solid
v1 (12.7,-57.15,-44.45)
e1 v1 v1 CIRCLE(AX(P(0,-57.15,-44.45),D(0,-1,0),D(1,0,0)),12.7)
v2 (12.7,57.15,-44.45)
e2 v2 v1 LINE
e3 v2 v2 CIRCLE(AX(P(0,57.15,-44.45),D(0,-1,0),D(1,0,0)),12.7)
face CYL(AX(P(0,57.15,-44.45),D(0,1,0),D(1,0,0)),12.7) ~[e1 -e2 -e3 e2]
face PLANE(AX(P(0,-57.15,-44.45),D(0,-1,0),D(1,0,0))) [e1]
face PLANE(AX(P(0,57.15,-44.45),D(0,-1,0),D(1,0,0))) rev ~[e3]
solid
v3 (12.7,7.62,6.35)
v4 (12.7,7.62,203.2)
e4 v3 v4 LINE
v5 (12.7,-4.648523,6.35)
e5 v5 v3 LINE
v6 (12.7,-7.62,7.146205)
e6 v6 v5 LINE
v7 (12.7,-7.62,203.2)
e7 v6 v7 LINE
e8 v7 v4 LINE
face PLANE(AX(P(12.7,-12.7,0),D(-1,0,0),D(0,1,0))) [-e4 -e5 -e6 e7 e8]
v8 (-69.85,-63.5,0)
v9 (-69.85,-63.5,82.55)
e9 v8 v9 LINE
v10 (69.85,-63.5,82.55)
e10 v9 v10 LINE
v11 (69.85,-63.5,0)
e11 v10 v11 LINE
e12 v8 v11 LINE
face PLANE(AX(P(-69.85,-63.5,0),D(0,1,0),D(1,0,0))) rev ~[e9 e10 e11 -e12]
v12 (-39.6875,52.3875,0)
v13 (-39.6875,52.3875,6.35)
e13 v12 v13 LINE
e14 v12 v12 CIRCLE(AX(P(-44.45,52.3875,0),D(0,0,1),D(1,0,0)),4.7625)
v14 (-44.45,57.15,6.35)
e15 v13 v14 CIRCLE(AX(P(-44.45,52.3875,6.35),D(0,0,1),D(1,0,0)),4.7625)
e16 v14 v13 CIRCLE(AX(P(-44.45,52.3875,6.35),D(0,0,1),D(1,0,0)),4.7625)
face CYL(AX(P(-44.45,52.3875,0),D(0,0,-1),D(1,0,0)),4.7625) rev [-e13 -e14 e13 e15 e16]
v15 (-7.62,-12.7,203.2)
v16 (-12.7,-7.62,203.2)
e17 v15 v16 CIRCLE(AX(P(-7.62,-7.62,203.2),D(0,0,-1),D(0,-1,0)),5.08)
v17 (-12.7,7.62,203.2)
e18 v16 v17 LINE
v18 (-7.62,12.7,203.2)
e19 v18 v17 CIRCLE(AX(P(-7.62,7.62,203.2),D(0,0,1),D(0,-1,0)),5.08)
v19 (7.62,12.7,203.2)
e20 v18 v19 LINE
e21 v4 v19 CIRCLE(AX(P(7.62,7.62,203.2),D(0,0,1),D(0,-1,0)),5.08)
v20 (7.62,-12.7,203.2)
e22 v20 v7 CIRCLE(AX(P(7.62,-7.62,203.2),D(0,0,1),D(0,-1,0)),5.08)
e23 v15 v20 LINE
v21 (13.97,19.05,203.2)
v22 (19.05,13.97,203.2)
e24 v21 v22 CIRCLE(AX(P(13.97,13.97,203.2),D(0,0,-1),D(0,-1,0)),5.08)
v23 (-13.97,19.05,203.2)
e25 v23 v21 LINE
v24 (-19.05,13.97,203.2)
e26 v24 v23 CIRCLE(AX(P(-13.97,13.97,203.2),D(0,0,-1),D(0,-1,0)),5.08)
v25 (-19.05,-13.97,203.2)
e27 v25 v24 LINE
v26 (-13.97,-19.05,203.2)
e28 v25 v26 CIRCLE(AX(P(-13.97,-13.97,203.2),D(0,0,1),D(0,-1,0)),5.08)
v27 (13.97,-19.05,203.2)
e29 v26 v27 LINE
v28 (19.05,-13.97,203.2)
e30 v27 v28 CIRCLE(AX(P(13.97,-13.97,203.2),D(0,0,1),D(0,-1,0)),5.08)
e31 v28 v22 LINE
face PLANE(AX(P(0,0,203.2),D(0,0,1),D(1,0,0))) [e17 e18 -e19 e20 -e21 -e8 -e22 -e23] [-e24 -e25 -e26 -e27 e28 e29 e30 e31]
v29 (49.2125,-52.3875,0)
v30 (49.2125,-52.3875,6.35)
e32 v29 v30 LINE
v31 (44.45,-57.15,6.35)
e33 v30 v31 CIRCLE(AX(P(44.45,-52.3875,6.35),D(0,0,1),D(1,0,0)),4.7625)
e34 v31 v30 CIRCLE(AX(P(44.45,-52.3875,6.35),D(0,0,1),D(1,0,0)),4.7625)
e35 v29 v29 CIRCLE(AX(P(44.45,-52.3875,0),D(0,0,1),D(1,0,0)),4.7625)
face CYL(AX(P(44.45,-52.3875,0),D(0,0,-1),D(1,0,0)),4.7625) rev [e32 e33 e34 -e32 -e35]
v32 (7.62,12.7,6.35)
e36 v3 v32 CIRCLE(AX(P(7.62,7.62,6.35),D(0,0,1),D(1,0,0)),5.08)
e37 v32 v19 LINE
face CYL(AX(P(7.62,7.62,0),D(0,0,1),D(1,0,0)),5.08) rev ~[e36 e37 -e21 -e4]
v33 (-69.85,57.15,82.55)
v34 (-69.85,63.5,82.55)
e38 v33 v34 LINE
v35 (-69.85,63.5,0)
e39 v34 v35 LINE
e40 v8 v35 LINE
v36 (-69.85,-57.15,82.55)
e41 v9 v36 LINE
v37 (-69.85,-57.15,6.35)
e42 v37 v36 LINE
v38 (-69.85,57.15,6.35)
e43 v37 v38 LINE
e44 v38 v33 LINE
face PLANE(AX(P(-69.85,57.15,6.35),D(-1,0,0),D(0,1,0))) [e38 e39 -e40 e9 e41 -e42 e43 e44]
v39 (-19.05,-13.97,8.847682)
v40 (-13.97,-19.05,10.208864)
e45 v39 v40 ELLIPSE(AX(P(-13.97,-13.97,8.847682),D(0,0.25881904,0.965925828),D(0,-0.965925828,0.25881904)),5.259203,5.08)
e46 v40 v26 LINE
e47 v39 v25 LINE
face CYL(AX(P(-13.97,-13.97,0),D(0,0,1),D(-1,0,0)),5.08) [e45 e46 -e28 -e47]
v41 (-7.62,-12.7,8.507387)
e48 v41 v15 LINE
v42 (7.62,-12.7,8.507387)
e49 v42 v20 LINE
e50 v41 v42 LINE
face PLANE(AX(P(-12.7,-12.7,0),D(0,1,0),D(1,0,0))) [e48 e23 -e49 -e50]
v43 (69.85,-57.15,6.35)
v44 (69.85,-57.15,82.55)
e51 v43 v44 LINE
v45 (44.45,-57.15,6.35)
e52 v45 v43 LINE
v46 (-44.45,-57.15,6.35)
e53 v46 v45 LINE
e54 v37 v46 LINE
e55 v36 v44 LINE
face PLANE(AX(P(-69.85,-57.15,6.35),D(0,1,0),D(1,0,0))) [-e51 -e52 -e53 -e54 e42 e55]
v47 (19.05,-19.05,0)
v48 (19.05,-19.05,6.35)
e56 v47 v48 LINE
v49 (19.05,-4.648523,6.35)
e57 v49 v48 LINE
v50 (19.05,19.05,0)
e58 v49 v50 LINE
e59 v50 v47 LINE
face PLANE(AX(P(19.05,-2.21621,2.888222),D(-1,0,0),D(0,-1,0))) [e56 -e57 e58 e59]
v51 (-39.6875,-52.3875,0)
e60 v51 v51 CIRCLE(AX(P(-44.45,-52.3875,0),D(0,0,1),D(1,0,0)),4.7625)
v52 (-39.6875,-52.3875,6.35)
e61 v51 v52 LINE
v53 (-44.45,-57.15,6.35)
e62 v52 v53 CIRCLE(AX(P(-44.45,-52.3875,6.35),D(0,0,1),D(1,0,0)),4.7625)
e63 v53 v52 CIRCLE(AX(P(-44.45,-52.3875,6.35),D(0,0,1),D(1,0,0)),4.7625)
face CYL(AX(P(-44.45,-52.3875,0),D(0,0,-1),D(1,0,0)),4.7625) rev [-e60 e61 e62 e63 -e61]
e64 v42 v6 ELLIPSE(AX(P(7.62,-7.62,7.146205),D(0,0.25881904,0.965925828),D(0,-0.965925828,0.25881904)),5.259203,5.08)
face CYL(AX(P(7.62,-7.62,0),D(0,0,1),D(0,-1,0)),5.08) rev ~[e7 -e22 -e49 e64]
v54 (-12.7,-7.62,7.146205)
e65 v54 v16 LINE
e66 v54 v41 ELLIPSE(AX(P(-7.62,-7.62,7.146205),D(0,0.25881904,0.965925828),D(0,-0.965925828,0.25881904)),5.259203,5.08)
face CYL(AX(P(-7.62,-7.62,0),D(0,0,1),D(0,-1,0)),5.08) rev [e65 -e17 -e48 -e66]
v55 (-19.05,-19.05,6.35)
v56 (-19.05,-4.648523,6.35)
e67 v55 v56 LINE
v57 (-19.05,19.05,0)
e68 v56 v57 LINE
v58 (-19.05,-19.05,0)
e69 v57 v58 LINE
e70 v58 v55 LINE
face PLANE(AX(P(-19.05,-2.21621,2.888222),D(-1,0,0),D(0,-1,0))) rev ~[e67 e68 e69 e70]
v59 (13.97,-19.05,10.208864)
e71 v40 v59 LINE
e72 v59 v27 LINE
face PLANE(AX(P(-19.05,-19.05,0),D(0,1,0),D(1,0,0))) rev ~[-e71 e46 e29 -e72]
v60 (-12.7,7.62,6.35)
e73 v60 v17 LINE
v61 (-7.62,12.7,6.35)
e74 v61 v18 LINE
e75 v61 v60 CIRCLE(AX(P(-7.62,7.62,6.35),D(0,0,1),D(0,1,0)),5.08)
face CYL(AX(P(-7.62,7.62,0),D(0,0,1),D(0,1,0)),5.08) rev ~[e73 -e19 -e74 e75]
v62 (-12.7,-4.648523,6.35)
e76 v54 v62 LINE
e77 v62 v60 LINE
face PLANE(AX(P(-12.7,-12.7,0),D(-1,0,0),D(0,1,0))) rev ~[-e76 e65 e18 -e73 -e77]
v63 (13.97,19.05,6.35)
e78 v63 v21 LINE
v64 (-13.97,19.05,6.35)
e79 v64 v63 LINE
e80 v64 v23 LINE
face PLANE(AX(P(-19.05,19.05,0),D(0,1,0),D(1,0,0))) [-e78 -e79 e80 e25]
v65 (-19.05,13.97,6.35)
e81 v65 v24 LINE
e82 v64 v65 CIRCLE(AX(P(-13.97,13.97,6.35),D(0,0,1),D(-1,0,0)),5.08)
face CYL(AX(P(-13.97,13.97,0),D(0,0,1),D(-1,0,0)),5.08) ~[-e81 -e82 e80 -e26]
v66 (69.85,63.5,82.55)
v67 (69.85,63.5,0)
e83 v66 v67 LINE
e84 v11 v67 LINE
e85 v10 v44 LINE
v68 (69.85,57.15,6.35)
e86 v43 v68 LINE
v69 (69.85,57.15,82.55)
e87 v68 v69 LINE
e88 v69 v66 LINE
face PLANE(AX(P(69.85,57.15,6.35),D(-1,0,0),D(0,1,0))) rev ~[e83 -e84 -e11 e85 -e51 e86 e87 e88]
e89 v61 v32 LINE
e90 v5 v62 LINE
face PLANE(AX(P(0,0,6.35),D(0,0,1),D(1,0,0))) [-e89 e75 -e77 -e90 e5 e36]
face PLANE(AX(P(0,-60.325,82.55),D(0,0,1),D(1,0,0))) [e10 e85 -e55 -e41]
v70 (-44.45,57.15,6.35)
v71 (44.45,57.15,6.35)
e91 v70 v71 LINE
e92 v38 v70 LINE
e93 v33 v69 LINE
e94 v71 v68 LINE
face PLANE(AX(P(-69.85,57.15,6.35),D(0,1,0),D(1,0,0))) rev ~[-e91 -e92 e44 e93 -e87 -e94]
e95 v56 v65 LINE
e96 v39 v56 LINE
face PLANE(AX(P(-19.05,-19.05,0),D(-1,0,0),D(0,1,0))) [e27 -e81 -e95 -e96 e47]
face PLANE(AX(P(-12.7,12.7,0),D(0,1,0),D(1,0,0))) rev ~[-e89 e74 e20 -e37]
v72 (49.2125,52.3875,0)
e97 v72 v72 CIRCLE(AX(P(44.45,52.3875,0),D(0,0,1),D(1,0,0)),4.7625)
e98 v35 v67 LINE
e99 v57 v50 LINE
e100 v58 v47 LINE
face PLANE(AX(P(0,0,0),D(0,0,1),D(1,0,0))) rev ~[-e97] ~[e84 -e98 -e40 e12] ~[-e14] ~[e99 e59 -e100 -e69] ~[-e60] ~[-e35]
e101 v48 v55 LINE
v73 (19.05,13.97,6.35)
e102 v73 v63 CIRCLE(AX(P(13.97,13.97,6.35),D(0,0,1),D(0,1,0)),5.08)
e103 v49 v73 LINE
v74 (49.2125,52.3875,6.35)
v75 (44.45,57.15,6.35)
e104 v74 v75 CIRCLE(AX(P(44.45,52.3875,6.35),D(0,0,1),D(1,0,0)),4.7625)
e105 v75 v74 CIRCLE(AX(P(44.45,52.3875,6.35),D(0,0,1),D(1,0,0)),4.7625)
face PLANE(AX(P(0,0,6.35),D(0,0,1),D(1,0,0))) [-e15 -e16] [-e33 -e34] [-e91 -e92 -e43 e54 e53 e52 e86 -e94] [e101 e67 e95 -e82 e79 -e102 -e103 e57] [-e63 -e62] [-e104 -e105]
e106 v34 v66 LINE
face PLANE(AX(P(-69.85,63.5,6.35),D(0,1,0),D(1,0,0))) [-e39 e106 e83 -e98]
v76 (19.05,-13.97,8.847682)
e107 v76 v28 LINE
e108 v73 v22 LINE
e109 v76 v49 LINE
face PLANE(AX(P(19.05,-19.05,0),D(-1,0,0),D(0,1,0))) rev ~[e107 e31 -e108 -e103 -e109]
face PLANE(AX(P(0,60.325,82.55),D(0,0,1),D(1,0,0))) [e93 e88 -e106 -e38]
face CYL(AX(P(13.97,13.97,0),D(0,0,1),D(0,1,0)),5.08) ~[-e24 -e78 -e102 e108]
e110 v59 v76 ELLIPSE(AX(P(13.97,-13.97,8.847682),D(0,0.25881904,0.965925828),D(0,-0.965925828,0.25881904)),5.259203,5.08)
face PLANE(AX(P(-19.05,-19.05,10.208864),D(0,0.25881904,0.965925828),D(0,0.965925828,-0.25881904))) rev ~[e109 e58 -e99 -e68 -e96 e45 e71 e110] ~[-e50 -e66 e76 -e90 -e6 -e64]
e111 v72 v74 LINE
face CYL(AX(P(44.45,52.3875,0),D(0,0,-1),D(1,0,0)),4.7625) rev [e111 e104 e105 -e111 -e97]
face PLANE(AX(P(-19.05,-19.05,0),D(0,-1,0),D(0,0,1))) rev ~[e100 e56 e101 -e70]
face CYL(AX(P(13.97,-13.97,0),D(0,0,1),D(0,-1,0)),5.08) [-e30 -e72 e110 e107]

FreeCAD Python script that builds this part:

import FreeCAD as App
import Part
import Sketcher

V = App.Vector
Q = App.Units.Quantity


def edges_at(feature, points):
    """Names of the edges that pass closest to the given points."""
    edges = feature.Shape.Edges
    near = lambda p: min(range(len(edges)), key=lambda i: edges[i].distToShape(Part.Vertex(*p))[0])
    return sorted({f"Edge{near(p) + 1}" for p in points})


def add_polygon(sketch, points):
    """Adds a closed chain of lines whose ends are joined by coincident constraints."""
    first, n = sketch.GeometryCount, len(points)
    for a, b in zip(points, points[1:] + points[:1]):
        sketch.addGeometry(Part.LineSegment(App.Vector(*a, 0), App.Vector(*b, 0)), False)
    for i in range(n):
        sketch.addConstraint(Sketcher.Constraint("Coincident", first + i, 2, first + (i + 1) % n, 1))

doc = App.newDocument("Part")
body = doc.addObject("PartDesign::Body", "Body")

sketch1 = doc.addObject("Sketcher::SketchObject", "Sketch")
body.addObject(sketch1)
sketch1.AttachmentSupport = (doc.XY_Plane, [""])
sketch1.MapMode = "FlatFace"
add_polygon(sketch1, [(-19, 19), (-19, -19), (19, -19), (19, 19)])
add_polygon(sketch1, [(13, -13), (-13, -13), (-13, 13), (13, 13)])
sketch1.addConstraint([
    Sketcher.Constraint("Vertical", 0),
    Sketcher.Constraint("Horizontal", 1),
    Sketcher.Constraint("Vertical", 2),
    Sketcher.Constraint("Horizontal", 3),
    Sketcher.Constraint("Horizontal", 4),
    Sketcher.Constraint("Vertical", 5),
    Sketcher.Constraint("Horizontal", 6),
    Sketcher.Constraint("Vertical", 7),
    Sketcher.Constraint("Symmetric", 0, 2, 2, 2, -1, 1),
    Sketcher.Constraint("Symmetric", 4, 2, 6, 2, -1, 1),
    Sketcher.Constraint("Equal", 3, 0),
    Sketcher.Constraint("Equal", 6, 5),
    Sketcher.Constraint("DistanceX", 4, 2, 4, 1, Q("1 in")),
    Sketcher.Constraint("DistanceX", 1, 1, 1, 2, Q("1.5 in")),
])
pad1 = doc.addObject("PartDesign::Pad", "Pad")
body.addObject(pad1)
pad1.Profile = sketch1
pad1.Length = Q("8 in")
doc.recompute()

fillet = doc.addObject("PartDesign::Fillet", "Fillet")
body.addObject(fillet)
fillet.Base = (pad1, edges_at(pad1, [
    (-19.05, 19.05, 101.6),
    (-19.05, -19.05, 101.6),
    (19.05, -19.05, 101.6),
    (19.05, 19.05, 101.6),
    (-12.7, 12.7, 101.6),
    (12.7, 12.7, 101.6),
    (12.7, -12.7, 101.6),
    (-12.7, -12.7, 101.6),
]))
fillet.Radius = Q("0.2 in")

sketch2 = doc.addObject("Sketcher::SketchObject", "Sketch001")
body.addObject(sketch2)
sketch2.AttachmentSupport = (doc.XY_Plane, [""])
sketch2.MapMode = "FlatFace"
add_polygon(sketch2, [(-69.8, 63.5), (-69.8, -63.5), (69.8, -63.5), (69.8, 63.5)])
sketch2.addGeometry(Part.Circle(V(-44.5, -52.4, 0), V(0, 0, 1), 4.8), False)
sketch2.addGeometry(Part.Circle(V(44.5, -52.4, 0), V(0, 0, 1), 4.8), False)
sketch2.addGeometry(Part.Circle(V(-44.5, 52.4, 0), V(0, 0, 1), 4.8), False)
sketch2.addGeometry(Part.Circle(V(44.5, 52.4, 0), V(0, 0, 1), 4.8), False)
sketch2.addConstraint([
    Sketcher.Constraint("Vertical", 0),
    Sketcher.Constraint("Horizontal", 1),
    Sketcher.Constraint("Vertical", 2),
    Sketcher.Constraint("Horizontal", 3),
    Sketcher.Constraint("Equal", 4, 5),
    Sketcher.Constraint("Equal", 5, 6),
    Sketcher.Constraint("Equal", 6, 7),
    Sketcher.Constraint("Symmetric", 5, 3, 6, 3, -1, 1),
    Sketcher.Constraint("Symmetric", 4, 3, 7, 3, -1, 1),
    Sketcher.Constraint("Symmetric", 0, 2, 2, 2, -1, 1),
    Sketcher.Constraint("Symmetric", 4, 3, 5, 3, -2),
    Sketcher.Constraint("DistanceY", 0, 2, 0, 1, Q("5 in")),
    Sketcher.Constraint("Diameter", 4, Q("0.375 in")),
    Sketcher.Constraint("DistanceX", 1, 1, 1, 2, Q("5.5 in")),
    Sketcher.Constraint("DistanceX", 0, 2, 4, 3, Q("1 in")),
    Sketcher.Constraint("DistanceY", 4, 3, -1, 1, Q("2.0625 in")),
])
pad2 = doc.addObject("PartDesign::Pad", "Pad001")
body.addObject(pad2)
pad2.Profile = sketch2
pad2.Length = Q("0.25 in")

sketch3 = doc.addObject("Sketcher::SketchObject", "Sketch002")
body.addObject(sketch3)
sketch3.AttachmentSupport = (doc.XY_Plane, [""])
sketch3.MapMode = "FlatFace"
sketch3.AttachmentOffset = App.Placement(V(0, 0, 0.25 * 25.4), App.Rotation())
add_polygon(sketch3, [(-70, 64), (-70, 57), (70, 57), (70, 64)])
add_polygon(sketch3, [(-70, -57), (-70, -64), (70, -64), (70, -57)])
sketch3.addConstraint([
    Sketcher.Constraint("Vertical", 0),
    Sketcher.Constraint("Horizontal", 1),
    Sketcher.Constraint("Vertical", 2),
    Sketcher.Constraint("Horizontal", 3),
    Sketcher.Constraint("Vertical", 4),
    Sketcher.Constraint("Horizontal", 5),
    Sketcher.Constraint("Vertical", 6),
    Sketcher.Constraint("Horizontal", 7),
    Sketcher.Constraint("Symmetric", 2, 2, 4, 2, -1, 1),
    Sketcher.Constraint("Symmetric", 0, 2, 6, 2, -1, 1),
    Sketcher.Constraint("Vertical", 3, 2, 4, 2),
    Sketcher.Constraint("DistanceX", 1, 1, 1, 2, Q("5.5 in")),
    Sketcher.Constraint("DistanceY", 4, 2, 3, 2, Q("5 in")),
    Sketcher.Constraint("DistanceY", 0, 2, 0, 1, Q("0.25 in")),
])
pad3 = doc.addObject("PartDesign::Pad", "Pad002")
body.addObject(pad3)
pad3.Profile = sketch3
pad3.Length = Q("3 in")

sketch4 = doc.addObject("Sketcher::SketchObject", "Sketch003")
body.addObject(sketch4)
sketch4.AttachmentSupport = (doc.YZ_Plane, [""])
sketch4.MapMode = "FlatFace"
sketch4.AttachmentOffset = App.Placement(V(0, 0, -0.75 * 25.4), App.Rotation())
add_polygon(sketch4, [(-19, 10), (19, 0), (-19, 0)])
sketch4.addConstraint([
    Sketcher.Constraint("Horizontal", 1),
    Sketcher.Constraint("Vertical", 2),
    Sketcher.Constraint("Symmetric", 0, 2, 1, 2, -1, 1),
    Sketcher.Constraint("DistanceX", 1, 2, 1, 1, Q("1.5 in")),
    Sketcher.Constraint("Angle", 0, Q("-15 deg")),
])
pocket1 = doc.addObject("PartDesign::Pocket", "Pocket")
body.addObject(pocket1)
pocket1.Profile = sketch4
pocket1.Length = Q("1.5 in")
pocket1.Reversed = True
body2 = doc.addObject("PartDesign::Body", "Body001")

sketch5 = doc.addObject("Sketcher::SketchObject", "Sketch004")
body2.addObject(sketch5)
sketch5.AttachmentSupport = (doc.getObject("XZ_Plane001"), [""])
sketch5.MapMode = "FlatFace"
sketch5.AttachmentOffset = App.Placement(V(0, 0, -2.25 * 25.4), App.Rotation())
sketch5.addGeometry(Part.Circle(V(0, -44, 0), V(0, 0, 1), 13), False)
sketch5.addConstraint([
    Sketcher.Constraint("PointOnObject", 0, 3, -2),
    Sketcher.Constraint("Diameter", 0, Q("1 in")),
    Sketcher.Constraint("DistanceY", 0, 3, -1, 1, Q("1.75 in")),
])
pad4 = doc.addObject("PartDesign::Pad", "Pad003")
body2.addObject(pad4)
pad4.Profile = sketch5
pad4.Length = Q("4.5 in")

doc.recompute()
